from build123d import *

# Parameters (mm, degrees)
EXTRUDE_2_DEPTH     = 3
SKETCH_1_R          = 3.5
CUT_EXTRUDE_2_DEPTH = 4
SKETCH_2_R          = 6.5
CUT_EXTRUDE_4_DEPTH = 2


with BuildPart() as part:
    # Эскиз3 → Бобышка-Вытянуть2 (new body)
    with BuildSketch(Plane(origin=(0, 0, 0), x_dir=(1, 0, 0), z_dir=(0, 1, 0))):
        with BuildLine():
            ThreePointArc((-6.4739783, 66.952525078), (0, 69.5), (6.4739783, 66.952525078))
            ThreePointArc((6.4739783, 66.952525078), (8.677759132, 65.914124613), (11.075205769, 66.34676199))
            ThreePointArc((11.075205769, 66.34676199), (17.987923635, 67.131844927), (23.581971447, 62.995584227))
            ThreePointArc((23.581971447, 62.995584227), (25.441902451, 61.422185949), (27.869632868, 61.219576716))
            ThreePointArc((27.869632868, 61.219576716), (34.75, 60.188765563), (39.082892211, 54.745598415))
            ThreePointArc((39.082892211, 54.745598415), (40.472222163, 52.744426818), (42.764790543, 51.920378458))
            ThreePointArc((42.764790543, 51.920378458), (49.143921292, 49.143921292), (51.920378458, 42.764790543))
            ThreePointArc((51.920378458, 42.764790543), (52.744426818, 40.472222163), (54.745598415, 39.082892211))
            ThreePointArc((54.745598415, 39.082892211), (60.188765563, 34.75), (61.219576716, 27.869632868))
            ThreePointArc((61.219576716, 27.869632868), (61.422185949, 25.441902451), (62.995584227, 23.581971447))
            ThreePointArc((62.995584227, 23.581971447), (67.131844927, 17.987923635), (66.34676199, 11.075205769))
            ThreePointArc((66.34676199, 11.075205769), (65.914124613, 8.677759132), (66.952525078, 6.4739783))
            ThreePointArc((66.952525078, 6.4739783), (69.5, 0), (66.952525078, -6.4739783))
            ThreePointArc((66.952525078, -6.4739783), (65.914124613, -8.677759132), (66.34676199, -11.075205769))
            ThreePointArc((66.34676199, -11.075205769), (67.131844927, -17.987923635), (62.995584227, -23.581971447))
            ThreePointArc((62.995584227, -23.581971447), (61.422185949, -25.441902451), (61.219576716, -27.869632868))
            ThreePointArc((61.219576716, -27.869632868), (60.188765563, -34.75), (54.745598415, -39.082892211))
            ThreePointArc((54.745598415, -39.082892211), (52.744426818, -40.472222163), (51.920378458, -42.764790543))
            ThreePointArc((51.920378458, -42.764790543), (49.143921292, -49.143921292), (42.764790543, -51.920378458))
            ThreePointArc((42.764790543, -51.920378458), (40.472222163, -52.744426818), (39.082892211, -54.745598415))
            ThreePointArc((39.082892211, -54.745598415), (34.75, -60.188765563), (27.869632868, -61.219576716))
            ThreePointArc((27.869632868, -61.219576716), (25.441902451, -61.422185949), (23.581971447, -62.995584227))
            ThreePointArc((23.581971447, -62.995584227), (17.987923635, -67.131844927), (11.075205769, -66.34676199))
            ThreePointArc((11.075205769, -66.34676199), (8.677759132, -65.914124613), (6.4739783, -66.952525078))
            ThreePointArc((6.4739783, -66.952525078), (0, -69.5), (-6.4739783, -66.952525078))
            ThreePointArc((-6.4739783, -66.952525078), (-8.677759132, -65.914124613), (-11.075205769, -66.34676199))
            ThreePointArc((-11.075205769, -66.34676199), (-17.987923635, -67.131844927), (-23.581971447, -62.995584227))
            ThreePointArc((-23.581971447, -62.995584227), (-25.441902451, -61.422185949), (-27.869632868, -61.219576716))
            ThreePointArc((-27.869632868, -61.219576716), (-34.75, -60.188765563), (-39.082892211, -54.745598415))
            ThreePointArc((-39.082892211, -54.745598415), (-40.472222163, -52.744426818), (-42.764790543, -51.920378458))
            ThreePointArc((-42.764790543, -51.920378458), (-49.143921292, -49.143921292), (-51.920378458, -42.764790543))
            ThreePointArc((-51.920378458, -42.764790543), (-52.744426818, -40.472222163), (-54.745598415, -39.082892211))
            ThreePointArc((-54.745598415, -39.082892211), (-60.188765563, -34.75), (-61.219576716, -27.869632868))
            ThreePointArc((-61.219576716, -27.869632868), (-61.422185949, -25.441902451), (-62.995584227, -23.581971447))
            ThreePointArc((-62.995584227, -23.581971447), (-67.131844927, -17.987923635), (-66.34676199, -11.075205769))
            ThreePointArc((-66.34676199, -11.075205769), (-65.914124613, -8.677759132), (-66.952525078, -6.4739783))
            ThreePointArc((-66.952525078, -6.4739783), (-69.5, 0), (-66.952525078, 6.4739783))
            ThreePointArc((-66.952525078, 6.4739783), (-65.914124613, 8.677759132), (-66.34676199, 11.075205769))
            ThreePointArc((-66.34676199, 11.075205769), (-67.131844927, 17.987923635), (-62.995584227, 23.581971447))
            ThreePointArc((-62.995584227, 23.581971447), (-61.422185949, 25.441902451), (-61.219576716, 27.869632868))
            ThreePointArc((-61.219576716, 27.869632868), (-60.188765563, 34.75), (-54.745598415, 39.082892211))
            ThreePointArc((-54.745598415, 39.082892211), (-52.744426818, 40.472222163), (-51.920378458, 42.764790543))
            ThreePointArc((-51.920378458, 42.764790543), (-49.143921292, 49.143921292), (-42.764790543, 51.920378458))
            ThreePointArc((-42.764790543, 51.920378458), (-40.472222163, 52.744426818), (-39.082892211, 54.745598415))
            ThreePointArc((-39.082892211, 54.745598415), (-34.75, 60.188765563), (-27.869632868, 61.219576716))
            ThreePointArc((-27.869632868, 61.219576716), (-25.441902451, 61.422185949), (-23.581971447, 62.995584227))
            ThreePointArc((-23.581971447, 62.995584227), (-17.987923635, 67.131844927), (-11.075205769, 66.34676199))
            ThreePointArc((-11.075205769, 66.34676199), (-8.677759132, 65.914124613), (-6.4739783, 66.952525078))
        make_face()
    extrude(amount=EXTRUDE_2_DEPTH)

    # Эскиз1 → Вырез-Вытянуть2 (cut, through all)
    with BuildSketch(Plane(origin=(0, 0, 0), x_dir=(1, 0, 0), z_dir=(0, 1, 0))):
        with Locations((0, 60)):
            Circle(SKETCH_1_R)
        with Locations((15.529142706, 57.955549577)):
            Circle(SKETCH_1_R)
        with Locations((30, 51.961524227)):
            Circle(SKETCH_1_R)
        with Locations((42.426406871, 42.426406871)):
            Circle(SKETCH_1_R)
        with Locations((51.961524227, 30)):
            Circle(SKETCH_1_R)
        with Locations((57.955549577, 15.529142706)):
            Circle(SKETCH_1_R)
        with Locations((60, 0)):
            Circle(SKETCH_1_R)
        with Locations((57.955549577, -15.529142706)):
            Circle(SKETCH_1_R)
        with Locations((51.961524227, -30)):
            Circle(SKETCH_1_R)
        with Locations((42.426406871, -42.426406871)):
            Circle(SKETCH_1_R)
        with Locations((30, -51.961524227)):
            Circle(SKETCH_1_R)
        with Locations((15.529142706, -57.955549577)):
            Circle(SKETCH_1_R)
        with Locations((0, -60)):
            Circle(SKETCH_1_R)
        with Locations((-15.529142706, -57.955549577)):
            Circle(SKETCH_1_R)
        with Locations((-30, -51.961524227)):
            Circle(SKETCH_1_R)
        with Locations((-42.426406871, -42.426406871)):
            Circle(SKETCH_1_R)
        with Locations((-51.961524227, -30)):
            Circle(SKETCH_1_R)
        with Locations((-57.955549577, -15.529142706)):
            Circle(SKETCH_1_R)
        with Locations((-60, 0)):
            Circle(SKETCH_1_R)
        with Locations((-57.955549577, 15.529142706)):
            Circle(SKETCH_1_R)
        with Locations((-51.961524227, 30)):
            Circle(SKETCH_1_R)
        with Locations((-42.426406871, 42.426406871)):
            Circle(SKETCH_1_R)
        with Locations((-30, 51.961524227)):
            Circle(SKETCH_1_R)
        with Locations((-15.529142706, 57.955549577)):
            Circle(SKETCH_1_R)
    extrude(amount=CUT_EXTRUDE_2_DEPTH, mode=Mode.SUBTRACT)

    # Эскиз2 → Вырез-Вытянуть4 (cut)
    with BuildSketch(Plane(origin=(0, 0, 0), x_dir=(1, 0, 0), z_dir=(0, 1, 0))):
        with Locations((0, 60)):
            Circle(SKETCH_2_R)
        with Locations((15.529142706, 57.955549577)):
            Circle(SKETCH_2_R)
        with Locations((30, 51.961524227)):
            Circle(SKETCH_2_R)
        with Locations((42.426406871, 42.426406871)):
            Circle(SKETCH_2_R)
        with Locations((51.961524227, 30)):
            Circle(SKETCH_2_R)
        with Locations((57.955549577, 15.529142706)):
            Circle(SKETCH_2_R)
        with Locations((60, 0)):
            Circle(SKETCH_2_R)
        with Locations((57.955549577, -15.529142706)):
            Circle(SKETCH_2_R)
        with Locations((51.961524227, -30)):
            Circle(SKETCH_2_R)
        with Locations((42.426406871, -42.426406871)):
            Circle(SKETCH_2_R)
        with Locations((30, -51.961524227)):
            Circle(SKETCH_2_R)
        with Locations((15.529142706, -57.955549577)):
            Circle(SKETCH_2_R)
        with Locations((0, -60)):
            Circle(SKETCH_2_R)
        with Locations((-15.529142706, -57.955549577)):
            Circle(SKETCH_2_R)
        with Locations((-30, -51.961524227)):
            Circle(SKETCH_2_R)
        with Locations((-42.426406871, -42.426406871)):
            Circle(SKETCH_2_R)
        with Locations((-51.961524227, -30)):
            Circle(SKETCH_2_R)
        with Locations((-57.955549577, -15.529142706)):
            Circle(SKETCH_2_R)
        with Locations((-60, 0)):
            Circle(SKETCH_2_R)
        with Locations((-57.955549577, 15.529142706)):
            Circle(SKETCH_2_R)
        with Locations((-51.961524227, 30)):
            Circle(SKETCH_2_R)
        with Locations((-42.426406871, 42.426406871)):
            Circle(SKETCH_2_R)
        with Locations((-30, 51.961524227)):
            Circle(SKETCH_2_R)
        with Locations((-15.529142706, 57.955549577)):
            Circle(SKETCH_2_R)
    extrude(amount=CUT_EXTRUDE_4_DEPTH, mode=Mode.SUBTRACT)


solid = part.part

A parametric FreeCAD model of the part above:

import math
import FreeCAD as App
import Part
import Sketcher

doc = App.newDocument("Part")
body = doc.addObject("PartDesign::Body", "Body")

sketch1 = body.newObject("Sketcher::SketchObject", "Sketch")
sketch1.AttachmentSupport = (doc.getObject("XZ_Plane"), [""])
sketch1.MapMode = "FlatFace"
sketch1.addGeometry(Part.ArcOfCircle(Part.Circle(App.Vector(0, -60, 0), App.Vector(0, 0, 1), 9.5), math.radians(-132.958731), math.radians(-47.041269)), False)
sketch1.addGeometry(Part.ArcOfCircle(Part.Circle(App.Vector(-9.199864, -69.879904, 0), App.Vector(0, 0, 1), 4), math.radians(47.041269), math.radians(117.958731)), False)
sketch1.addGeometry(Part.ArcOfCircle(Part.Circle(App.Vector(-15.529143, -57.95555, 0), App.Vector(0, 0, 1), 9.5), math.radians(-147.958731), math.radians(-62.041269)), False)
sketch1.addGeometry(Part.ArcOfCircle(Part.Circle(App.Vector(-26.972636, -65.117704, 0), App.Vector(0, 0, 1), 4), math.radians(32.041269), math.radians(102.958731)), False)
sketch1.addGeometry(Part.ArcOfCircle(Part.Circle(App.Vector(-30, -51.961524, 0), App.Vector(0, 0, 1), 9.5), math.radians(-162.958731), math.radians(-77.041269)), False)
sketch1.addGeometry(Part.ArcOfCircle(Part.Circle(App.Vector(-42.907268, -55.91784, 0), App.Vector(0, 0, 1), 4), math.radians(17.041269), math.radians(87.958731)), False)
sketch1.addGeometry(Part.ArcOfCircle(Part.Circle(App.Vector(-42.426407, -42.426407, 0), App.Vector(0, 0, 1), 9.5), math.radians(-177.958731), math.radians(-92.041269)), False)
sketch1.addGeometry(Part.ArcOfCircle(Part.Circle(App.Vector(-55.91784, -42.907268, 0), App.Vector(0, 0, 1), 4), math.radians(2.041269), math.radians(72.958731)), False)
sketch1.addGeometry(Part.ArcOfCircle(Part.Circle(App.Vector(-51.961524, -30, 0), App.Vector(0, 0, 1), 9.5), math.radians(167.041269), math.radians(252.958731)), False)
sketch1.addGeometry(Part.ArcOfCircle(Part.Circle(App.Vector(-65.117704, -26.972636, 0), App.Vector(0, 0, 1), 4), math.radians(-12.958731), math.radians(57.958731)), False)
sketch1.addGeometry(Part.ArcOfCircle(Part.Circle(App.Vector(-57.95555, -15.529143, 0), App.Vector(0, 0, 1), 9.5), math.radians(152.041269), math.radians(237.958731)), False)
sketch1.addGeometry(Part.ArcOfCircle(Part.Circle(App.Vector(-69.879904, -9.199864, 0), App.Vector(0, 0, 1), 4), math.radians(-27.958731), math.radians(42.958731)), False)
sketch1.addGeometry(Part.ArcOfCircle(Part.Circle(App.Vector(-60, 0, 0), App.Vector(0, 0, 1), 9.5), math.radians(137.041269), math.radians(222.958731)), False)
sketch1.addGeometry(Part.ArcOfCircle(Part.Circle(App.Vector(-69.879904, 9.199864, 0), App.Vector(0, 0, 1), 4), math.radians(-42.958731), math.radians(27.958731)), False)
sketch1.addGeometry(Part.ArcOfCircle(Part.Circle(App.Vector(-57.95555, 15.529143, 0), App.Vector(0, 0, 1), 9.5), math.radians(122.041269), math.radians(207.958731)), False)
sketch1.addGeometry(Part.ArcOfCircle(Part.Circle(App.Vector(-65.117704, 26.972636, 0), App.Vector(0, 0, 1), 4), math.radians(-57.958731), math.radians(12.958731)), False)
sketch1.addGeometry(Part.ArcOfCircle(Part.Circle(App.Vector(-51.961524, 30, 0), App.Vector(0, 0, 1), 9.5), math.radians(107.041269), math.radians(192.958731)), False)
sketch1.addGeometry(Part.ArcOfCircle(Part.Circle(App.Vector(-55.91784, 42.907268, 0), App.Vector(0, 0, 1), 4), math.radians(-72.958731), math.radians(-2.041269)), False)
sketch1.addGeometry(Part.ArcOfCircle(Part.Circle(App.Vector(-42.426407, 42.426407, 0), App.Vector(0, 0, 1), 9.5), math.radians(92.041269), math.radians(177.958731)), False)
sketch1.addGeometry(Part.ArcOfCircle(Part.Circle(App.Vector(-42.907268, 55.91784, 0), App.Vector(0, 0, 1), 4), math.radians(-87.958731), math.radians(-17.041269)), False)
sketch1.addGeometry(Part.ArcOfCircle(Part.Circle(App.Vector(-30, 51.961524, 0), App.Vector(0, 0, 1), 9.5), math.radians(77.041269), math.radians(162.958731)), False)
sketch1.addGeometry(Part.ArcOfCircle(Part.Circle(App.Vector(-26.972636, 65.117704, 0), App.Vector(0, 0, 1), 4), math.radians(-102.958731), math.radians(-32.041269)), False)
sketch1.addGeometry(Part.ArcOfCircle(Part.Circle(App.Vector(-15.529143, 57.95555, 0), App.Vector(0, 0, 1), 9.5), math.radians(62.041269), math.radians(147.958731)), False)
sketch1.addGeometry(Part.ArcOfCircle(Part.Circle(App.Vector(-9.199864, 69.879904, 0), App.Vector(0, 0, 1), 4), math.radians(-117.958731), math.radians(-47.041269)), False)
sketch1.addGeometry(Part.ArcOfCircle(Part.Circle(App.Vector(0, 60, 0), App.Vector(0, 0, 1), 9.5), math.radians(47.041269), math.radians(132.958731)), False)
sketch1.addGeometry(Part.ArcOfCircle(Part.Circle(App.Vector(9.199864, 69.879904, 0), App.Vector(0, 0, 1), 4), math.radians(-132.958731), math.radians(-62.041269)), False)
sketch1.addGeometry(Part.ArcOfCircle(Part.Circle(App.Vector(15.529143, 57.95555, 0), App.Vector(0, 0, 1), 9.5), math.radians(32.041269), math.radians(117.958731)), False)
sketch1.addGeometry(Part.ArcOfCircle(Part.Circle(App.Vector(26.972636, 65.117704, 0), App.Vector(0, 0, 1), 4), math.radians(-147.958731), math.radians(-77.041269)), False)
sketch1.addGeometry(Part.ArcOfCircle(Part.Circle(App.Vector(30, 51.961524, 0), App.Vector(0, 0, 1), 9.5), math.radians(17.041269), math.radians(102.958731)), False)
sketch1.addGeometry(Part.ArcOfCircle(Part.Circle(App.Vector(42.907268, 55.91784, 0), App.Vector(0, 0, 1), 4), math.radians(-162.958731), math.radians(-92.041269)), False)
sketch1.addGeometry(Part.ArcOfCircle(Part.Circle(App.Vector(42.426407, 42.426407, 0), App.Vector(0, 0, 1), 9.5), math.radians(2.041269), math.radians(87.958731)), False)
sketch1.addGeometry(Part.ArcOfCircle(Part.Circle(App.Vector(55.91784, 42.907268, 0), App.Vector(0, 0, 1), 4), math.radians(-177.958731), math.radians(-107.041269)), False)
sketch1.addGeometry(Part.ArcOfCircle(Part.Circle(App.Vector(51.961524, 30, 0), App.Vector(0, 0, 1), 9.5), math.radians(-12.958731), math.radians(72.958731)), False)
sketch1.addGeometry(Part.ArcOfCircle(Part.Circle(App.Vector(65.117704, 26.972636, 0), App.Vector(0, 0, 1), 4), math.radians(167.041269), math.radians(237.958731)), False)
sketch1.addGeometry(Part.ArcOfCircle(Part.Circle(App.Vector(57.95555, 15.529143, 0), App.Vector(0, 0, 1), 9.5), math.radians(-27.958731), math.radians(57.958731)), False)
sketch1.addGeometry(Part.ArcOfCircle(Part.Circle(App.Vector(69.879904, 9.199864, 0), App.Vector(0, 0, 1), 4), math.radians(152.041269), math.radians(222.958731)), False)
sketch1.addGeometry(Part.ArcOfCircle(Part.Circle(App.Vector(60, 0, 0), App.Vector(0, 0, 1), 9.5), math.radians(-42.958731), math.radians(42.958731)), False)
sketch1.addGeometry(Part.ArcOfCircle(Part.Circle(App.Vector(69.879904, -9.199864, 0), App.Vector(0, 0, 1), 4), math.radians(137.041269), math.radians(207.958731)), False)
sketch1.addGeometry(Part.ArcOfCircle(Part.Circle(App.Vector(57.95555, -15.529143, 0), App.Vector(0, 0, 1), 9.5), math.radians(-57.958731), math.radians(27.958731)), False)
sketch1.addGeometry(Part.ArcOfCircle(Part.Circle(App.Vector(65.117704, -26.972636, 0), App.Vector(0, 0, 1), 4), math.radians(122.041269), math.radians(192.958731)), False)
sketch1.addGeometry(Part.ArcOfCircle(Part.Circle(App.Vector(51.961524, -30, 0), App.Vector(0, 0, 1), 9.5), math.radians(-72.958731), math.radians(12.958731)), False)
sketch1.addGeometry(Part.ArcOfCircle(Part.Circle(App.Vector(55.91784, -42.907268, 0), App.Vector(0, 0, 1), 4), math.radians(107.041269), math.radians(177.958731)), False)
sketch1.addGeometry(Part.ArcOfCircle(Part.Circle(App.Vector(42.426407, -42.426407, 0), App.Vector(0, 0, 1), 9.5), math.radians(-87.958731), math.radians(-2.041269)), False)
sketch1.addGeometry(Part.ArcOfCircle(Part.Circle(App.Vector(42.907268, -55.91784, 0), App.Vector(0, 0, 1), 4), math.radians(92.041269), math.radians(162.958731)), False)
sketch1.addGeometry(Part.ArcOfCircle(Part.Circle(App.Vector(30, -51.961524, 0), App.Vector(0, 0, 1), 9.5), math.radians(-102.958731), math.radians(-17.041269)), False)
sketch1.addGeometry(Part.ArcOfCircle(Part.Circle(App.Vector(26.972636, -65.117704, 0), App.Vector(0, 0, 1), 4), math.radians(77.041269), math.radians(147.958731)), False)
sketch1.addGeometry(Part.ArcOfCircle(Part.Circle(App.Vector(15.529143, -57.95555, 0), App.Vector(0, 0, 1), 9.5), math.radians(-117.958731), math.radians(-32.041269)), False)
sketch1.addGeometry(Part.ArcOfCircle(Part.Circle(App.Vector(9.199864, -69.879904, 0), App.Vector(0, 0, 1), 4), math.radians(62.041269), math.radians(132.958731)), False)
sketch1.addConstraint(Sketcher.Constraint("Tangent", 0, 1, 1, 1))
sketch1.addConstraint(Sketcher.Constraint("Tangent", 1, 2, 2, 2))
sketch1.addConstraint(Sketcher.Constraint("Tangent", 2, 1, 3, 1))
sketch1.addConstraint(Sketcher.Constraint("Tangent", 3, 2, 4, 2))
sketch1.addConstraint(Sketcher.Constraint("Tangent", 4, 1, 5, 1))
sketch1.addConstraint(Sketcher.Constraint("Tangent", 5, 2, 6, 2))
sketch1.addConstraint(Sketcher.Constraint("Tangent", 6, 1, 7, 1))
sketch1.addConstraint(Sketcher.Constraint("Tangent", 7, 2, 8, 2))
sketch1.addConstraint(Sketcher.Constraint("Tangent", 8, 1, 9, 1))
sketch1.addConstraint(Sketcher.Constraint("Tangent", 9, 2, 10, 2))
sketch1.addConstraint(Sketcher.Constraint("Tangent", 10, 1, 11, 1))
sketch1.addConstraint(Sketcher.Constraint("Tangent", 11, 2, 12, 2))
sketch1.addConstraint(Sketcher.Constraint("Tangent", 12, 1, 13, 1))
sketch1.addConstraint(Sketcher.Constraint("Tangent", 13, 2, 14, 2))
sketch1.addConstraint(Sketcher.Constraint("Tangent", 14, 1, 15, 1))
sketch1.addConstraint(Sketcher.Constraint("Tangent", 15, 2, 16, 2))
sketch1.addConstraint(Sketcher.Constraint("Tangent", 16, 1, 17, 1))
sketch1.addConstraint(Sketcher.Constraint("Tangent", 17, 2, 18, 2))
sketch1.addConstraint(Sketcher.Constraint("Tangent", 18, 1, 19, 1))
sketch1.addConstraint(Sketcher.Constraint("Tangent", 19, 2, 20, 2))
sketch1.addConstraint(Sketcher.Constraint("Tangent", 20, 1, 21, 1))
sketch1.addConstraint(Sketcher.Constraint("Tangent", 21, 2, 22, 2))
sketch1.addConstraint(Sketcher.Constraint("Tangent", 22, 1, 23, 1))
sketch1.addConstraint(Sketcher.Constraint("Tangent", 23, 2, 24, 2))
sketch1.addConstraint(Sketcher.Constraint("Tangent", 24, 1, 25, 1))
sketch1.addConstraint(Sketcher.Constraint("Tangent", 25, 2, 26, 2))
sketch1.addConstraint(Sketcher.Constraint("Tangent", 26, 1, 27, 1))
sketch1.addConstraint(Sketcher.Constraint("Tangent", 27, 2, 28, 2))
sketch1.addConstraint(Sketcher.Constraint("Tangent", 28, 1, 29, 1))
sketch1.addConstraint(Sketcher.Constraint("Tangent", 29, 2, 30, 2))
sketch1.addConstraint(Sketcher.Constraint("Tangent", 30, 1, 31, 1))
sketch1.addConstraint(Sketcher.Constraint("Tangent", 31, 2, 32, 2))
sketch1.addConstraint(Sketcher.Constraint("Tangent", 32, 1, 33, 1))
sketch1.addConstraint(Sketcher.Constraint("Tangent", 33, 2, 34, 2))
sketch1.addConstraint(Sketcher.Constraint("Tangent", 34, 1, 35, 1))
sketch1.addConstraint(Sketcher.Constraint("Tangent", 35, 2, 36, 2))
sketch1.addConstraint(Sketcher.Constraint("Tangent", 36, 1, 37, 1))
sketch1.addConstraint(Sketcher.Constraint("Tangent", 37, 2, 38, 2))
sketch1.addConstraint(Sketcher.Constraint("Tangent", 38, 1, 39, 1))
sketch1.addConstraint(Sketcher.Constraint("Tangent", 39, 2, 40, 2))
sketch1.addConstraint(Sketcher.Constraint("Tangent", 40, 1, 41, 1))
sketch1.addConstraint(Sketcher.Constraint("Tangent", 41, 2, 42, 2))
sketch1.addConstraint(Sketcher.Constraint("Tangent", 42, 1, 43, 1))
sketch1.addConstraint(Sketcher.Constraint("Tangent", 43, 2, 44, 2))
sketch1.addConstraint(Sketcher.Constraint("Tangent", 44, 1, 45, 1))
sketch1.addConstraint(Sketcher.Constraint("Tangent", 45, 2, 46, 2))
sketch1.addConstraint(Sketcher.Constraint("Tangent", 46, 1, 47, 1))
sketch1.addConstraint(Sketcher.Constraint("Tangent", 47, 2, 0, 2))
sketch1.addConstraint(Sketcher.Constraint("Equal", 0, 2))
sketch1.addConstraint(Sketcher.Constraint("Equal", 1, 3))
sketch1.addConstraint(Sketcher.Constraint("Equal", 2, 4))
sketch1.addConstraint(Sketcher.Constraint("Equal", 3, 5))
sketch1.addConstraint(Sketcher.Constraint("Equal", 4, 6))
sketch1.addConstraint(Sketcher.Constraint("Equal", 5, 7))
sketch1.addConstraint(Sketcher.Constraint("Equal", 6, 8))
sketch1.addConstraint(Sketcher.Constraint("Equal", 7, 9))
sketch1.addConstraint(Sketcher.Constraint("Equal", 8, 10))
sketch1.addConstraint(Sketcher.Constraint("Equal", 9, 11))
sketch1.addConstraint(Sketcher.Constraint("Equal", 10, 12))
sketch1.addConstraint(Sketcher.Constraint("Equal", 11, 13))
sketch1.addConstraint(Sketcher.Constraint("Equal", 12, 14))
sketch1.addConstraint(Sketcher.Constraint("Equal", 13, 15))
sketch1.addConstraint(Sketcher.Constraint("Equal", 14, 16))
sketch1.addConstraint(Sketcher.Constraint("Equal", 15, 17))
sketch1.addConstraint(Sketcher.Constraint("Equal", 16, 18))
sketch1.addConstraint(Sketcher.Constraint("Equal", 17, 19))
sketch1.addConstraint(Sketcher.Constraint("Equal", 18, 20))
sketch1.addConstraint(Sketcher.Constraint("Equal", 19, 21))
sketch1.addConstraint(Sketcher.Constraint("Equal", 20, 22))
sketch1.addConstraint(Sketcher.Constraint("Equal", 21, 23))
sketch1.addConstraint(Sketcher.Constraint("Equal", 22, 24))
sketch1.addConstraint(Sketcher.Constraint("Equal", 23, 25))
sketch1.addConstraint(Sketcher.Constraint("Equal", 24, 26))
sketch1.addConstraint(Sketcher.Constraint("Equal", 25, 27))
sketch1.addConstraint(Sketcher.Constraint("Equal", 26, 28))
sketch1.addConstraint(Sketcher.Constraint("Equal", 27, 29))
sketch1.addConstraint(Sketcher.Constraint("Equal", 28, 30))
sketch1.addConstraint(Sketcher.Constraint("Equal", 29, 31))
sketch1.addConstraint(Sketcher.Constraint("Equal", 30, 32))
sketch1.addConstraint(Sketcher.Constraint("Equal", 31, 33))
sketch1.addConstraint(Sketcher.Constraint("Equal", 32, 34))
sketch1.addConstraint(Sketcher.Constraint("Equal", 33, 35))
sketch1.addConstraint(Sketcher.Constraint("Equal", 34, 36))
sketch1.addConstraint(Sketcher.Constraint("Equal", 35, 37))
sketch1.addConstraint(Sketcher.Constraint("Equal", 36, 38))
sketch1.addConstraint(Sketcher.Constraint("Equal", 37, 39))
sketch1.addConstraint(Sketcher.Constraint("Equal", 38, 40))
sketch1.addConstraint(Sketcher.Constraint("Equal", 39, 41))
sketch1.addConstraint(Sketcher.Constraint("Equal", 40, 42))
sketch1.addConstraint(Sketcher.Constraint("Equal", 41, 43))
sketch1.addConstraint(Sketcher.Constraint("Equal", 42, 44))
sketch1.addConstraint(Sketcher.Constraint("Equal", 43, 45))
sketch1.addConstraint(Sketcher.Constraint("Equal", 44, 46))
sketch1.addConstraint(Sketcher.Constraint("Equal", 45, 47))
sketch1.addConstraint(Sketcher.Constraint("Symmetric", 0, 3, 24, 3, -1, 1))
sketch1.addConstraint(Sketcher.Constraint("Symmetric", 2, 3, 26, 3, -1, 1))
sketch1.addConstraint(Sketcher.Constraint("Symmetric", 4, 3, 28, 3, -1, 1))
sketch1.addConstraint(Sketcher.Constraint("Symmetric", 6, 3, 30, 3, -1, 1))
sketch1.addConstraint(Sketcher.Constraint("Symmetric", 8, 3, 32, 3, -1, 1))
sketch1.addConstraint(Sketcher.Constraint("Symmetric", 10, 3, 34, 3, -1, 1))
sketch1.addConstraint(Sketcher.Constraint("Symmetric", 12, 3, 36, 3, -1, 1))
sketch1.addConstraint(Sketcher.Constraint("Symmetric", 14, 3, 38, 3, -1, 1))
sketch1.addConstraint(Sketcher.Constraint("Symmetric", 16, 3, 40, 3, -1, 1))
sketch1.addConstraint(Sketcher.Constraint("Symmetric", 18, 3, 42, 3, -1, 1))
sketch1.addConstraint(Sketcher.Constraint("Symmetric", 20, 3, 44, 3, -1, 1))
sketch1.addConstraint(Sketcher.Constraint("Symmetric", 22, 3, 46, 3, -1, 1))
sketch1.addConstraint(Sketcher.Constraint("Symmetric", 23, 3, 25, 3, -2))
sketch1.addConstraint(Sketcher.Constraint("Symmetric", 21, 3, 27, 3, -2))
sketch1.addConstraint(Sketcher.Constraint("Symmetric", 19, 3, 29, 3, -2))
sketch1.addConstraint(Sketcher.Constraint("Symmetric", 17, 3, 31, 3, -2))
sketch1.addConstraint(Sketcher.Constraint("Symmetric", 15, 3, 33, 3, -2))
sketch1.addConstraint(Sketcher.Constraint("Symmetric", 13, 3, 35, 3, -2))
sketch1.addConstraint(Sketcher.Constraint("Radius", 1, 4.0))
sketch1.addConstraint(Sketcher.Constraint("Radius", 0, 9.5))
sketch1.addConstraint(Sketcher.Constraint("DistanceY", 0, 3, -1, 1, 60.0))
sketch1.addConstraint(Sketcher.Constraint("DistanceX", 4, 3, -1, 1, 30.0))
sketch1.addConstraint(Sketcher.Constraint("DistanceY", 8, 3, -1, 1, 30.0))
sketch1.addConstraint(Sketcher.Constraint("DistanceX", 12, 3, -1, 1, 60.0))
sketch1.addConstraint(Sketcher.Constraint("DistanceY", 4, 1, -1, 1, 54.745598))
sketch1.addConstraint(Sketcher.Constraint("DistanceX", 7, 2, -1, 1, 54.745598))
sketch1.addConstraint(Sketcher.Constraint("DistanceY", 2, 3, -1, 1, 57.95555))
sketch1.addConstraint(Sketcher.Constraint("DistanceY", 5, 3, -1, 1, 55.91784))
sketch1.addConstraint(Sketcher.Constraint("DistanceX", 7, 3, -1, 1, 55.91784))
sketch1.addConstraint(Sketcher.Constraint("DistanceX", 10, 3, -1, 1, 57.95555))
sketch1.addConstraint(Sketcher.Constraint("DistanceX", 0, 1, -1, 1, 6.473978))
sketch1.addConstraint(Sketcher.Constraint("DistanceY", 9, 2, -1, 1, 23.581971))
pad1 = body.newObject("PartDesign::Pad", "Pad")
pad1.Profile = sketch1
pad1.Length = 3
pad1.Reversed = True

sketch2 = body.newObject("Sketcher::SketchObject", "Sketch001")
sketch2.AttachmentSupport = (doc.getObject("XZ_Plane"), [""])
sketch2.MapMode = "FlatFace"
sketch2.addGeometry(Part.Circle(App.Vector(0, -60, 0), App.Vector(0, 0, 1), 3.5), False)
sketch2.addGeometry(Part.Circle(App.Vector(15.529143, -57.95555, 0), App.Vector(0, 0, 1), 3.5), False)
sketch2.addGeometry(Part.Circle(App.Vector(30, -51.961524, 0), App.Vector(0, 0, 1), 3.5), False)
sketch2.addGeometry(Part.Circle(App.Vector(42.426407, -42.426407, 0), App.Vector(0, 0, 1), 3.5), False)
sketch2.addGeometry(Part.Circle(App.Vector(51.961524, -30, 0), App.Vector(0, 0, 1), 3.5), False)
sketch2.addGeometry(Part.Circle(App.Vector(57.95555, -15.529143, 0), App.Vector(0, 0, 1), 3.5), False)
sketch2.addGeometry(Part.Circle(App.Vector(60, 0, 0), App.Vector(0, 0, 1), 3.5), False)
sketch2.addGeometry(Part.Circle(App.Vector(57.95555, 15.529143, 0), App.Vector(0, 0, 1), 3.5), False)
sketch2.addGeometry(Part.Circle(App.Vector(51.961524, 30, 0), App.Vector(0, 0, 1), 3.5), False)
sketch2.addGeometry(Part.Circle(App.Vector(42.426407, 42.426407, 0), App.Vector(0, 0, 1), 3.5), False)
sketch2.addGeometry(Part.Circle(App.Vector(30, 51.961524, 0), App.Vector(0, 0, 1), 3.5), False)
sketch2.addGeometry(Part.Circle(App.Vector(15.529143, 57.95555, 0), App.Vector(0, 0, 1), 3.5), False)
sketch2.addGeometry(Part.Circle(App.Vector(0, 60, 0), App.Vector(0, 0, 1), 3.5), False)
sketch2.addGeometry(Part.Circle(App.Vector(-15.529143, 57.95555, 0), App.Vector(0, 0, 1), 3.5), False)
sketch2.addGeometry(Part.Circle(App.Vector(-30, 51.961524, 0), App.Vector(0, 0, 1), 3.5), False)
sketch2.addGeometry(Part.Circle(App.Vector(-42.426407, 42.426407, 0), App.Vector(0, 0, 1), 3.5), False)
sketch2.addGeometry(Part.Circle(App.Vector(-51.961524, 30, 0), App.Vector(0, 0, 1), 3.5), False)
sketch2.addGeometry(Part.Circle(App.Vector(-57.95555, 15.529143, 0), App.Vector(0, 0, 1), 3.5), False)
sketch2.addGeometry(Part.Circle(App.Vector(-60, 0, 0), App.Vector(0, 0, 1), 3.5), False)
sketch2.addGeometry(Part.Circle(App.Vector(-57.95555, -15.529143, 0), App.Vector(0, 0, 1), 3.5), False)
sketch2.addGeometry(Part.Circle(App.Vector(-51.961524, -30, 0), App.Vector(0, 0, 1), 3.5), False)
sketch2.addGeometry(Part.Circle(App.Vector(-42.426407, -42.426407, 0), App.Vector(0, 0, 1), 3.5), False)
sketch2.addGeometry(Part.Circle(App.Vector(-30, -51.961524, 0), App.Vector(0, 0, 1), 3.5), False)
sketch2.addGeometry(Part.Circle(App.Vector(-15.529143, -57.95555, 0), App.Vector(0, 0, 1), 3.5), False)
sketch2.addConstraint(Sketcher.Constraint("Equal", 0, 1))
sketch2.addConstraint(Sketcher.Constraint("Equal", 1, 2))
sketch2.addConstraint(Sketcher.Constraint("Equal", 2, 3))
sketch2.addConstraint(Sketcher.Constraint("Equal", 3, 4))
sketch2.addConstraint(Sketcher.Constraint("Equal", 4, 5))
sketch2.addConstraint(Sketcher.Constraint("Equal", 5, 6))
sketch2.addConstraint(Sketcher.Constraint("Equal", 6, 7))
sketch2.addConstraint(Sketcher.Constraint("Equal", 7, 8))
sketch2.addConstraint(Sketcher.Constraint("Equal", 8, 9))
sketch2.addConstraint(Sketcher.Constraint("Equal", 9, 10))
sketch2.addConstraint(Sketcher.Constraint("Equal", 10, 11))
sketch2.addConstraint(Sketcher.Constraint("Equal", 11, 12))
sketch2.addConstraint(Sketcher.Constraint("Equal", 12, 13))
sketch2.addConstraint(Sketcher.Constraint("Equal", 13, 14))
sketch2.addConstraint(Sketcher.Constraint("Equal", 14, 15))
sketch2.addConstraint(Sketcher.Constraint("Equal", 15, 16))
sketch2.addConstraint(Sketcher.Constraint("Equal", 16, 17))
sketch2.addConstraint(Sketcher.Constraint("Equal", 17, 18))
sketch2.addConstraint(Sketcher.Constraint("Equal", 18, 19))
sketch2.addConstraint(Sketcher.Constraint("Equal", 19, 20))
sketch2.addConstraint(Sketcher.Constraint("Equal", 20, 21))
sketch2.addConstraint(Sketcher.Constraint("Equal", 21, 22))
sketch2.addConstraint(Sketcher.Constraint("Equal", 22, 23))
sketch2.addConstraint(Sketcher.Constraint("Symmetric", 0, 3, 12, 3, -1, 1))
sketch2.addConstraint(Sketcher.Constraint("Symmetric", 1, 3, 13, 3, -1, 1))
sketch2.addConstraint(Sketcher.Constraint("Symmetric", 2, 3, 14, 3, -1, 1))
sketch2.addConstraint(Sketcher.Constraint("Symmetric", 3, 3, 15, 3, -1, 1))
sketch2.addConstraint(Sketcher.Constraint("Symmetric", 4, 3, 16, 3, -1, 1))
sketch2.addConstraint(Sketcher.Constraint("Symmetric", 5, 3, 17, 3, -1, 1))
sketch2.addConstraint(Sketcher.Constraint("Symmetric", 6, 3, 18, 3, -1, 1))
sketch2.addConstraint(Sketcher.Constraint("Symmetric", 7, 3, 19, 3, -1, 1))
sketch2.addConstraint(Sketcher.Constraint("Symmetric", 8, 3, 20, 3, -1, 1))
sketch2.addConstraint(Sketcher.Constraint("Symmetric", 9, 3, 21, 3, -1, 1))
sketch2.addConstraint(Sketcher.Constraint("Symmetric", 10, 3, 22, 3, -1, 1))
sketch2.addConstraint(Sketcher.Constraint("Symmetric", 11, 3, 23, 3, -1, 1))
sketch2.addConstraint(Sketcher.Constraint("Symmetric", 11, 3, 13, 3, -2))
sketch2.addConstraint(Sketcher.Constraint("Symmetric", 10, 3, 14, 3, -2))
sketch2.addConstraint(Sketcher.Constraint("Symmetric", 9, 3, 15, 3, -2))
sketch2.addConstraint(Sketcher.Constraint("Symmetric", 8, 3, 16, 3, -2))
sketch2.addConstraint(Sketcher.Constraint("Symmetric", 7, 3, 17, 3, -2))
sketch2.addConstraint(Sketcher.Constraint("PointOnObject", 0, 3, -2))
sketch2.addConstraint(Sketcher.Constraint("PointOnObject", 6, 3, -1))
sketch2.addConstraint(Sketcher.Constraint("Diameter", 0, 7.0))
sketch2.addConstraint(Sketcher.Constraint("DistanceY", 0, 3, -1, 1, 60.0))
sketch2.addConstraint(Sketcher.Constraint("DistanceX", -1, 1, 2, 3, 30.0))
sketch2.addConstraint(Sketcher.Constraint("DistanceY", 4, 3, -1, 1, 30.0))
sketch2.addConstraint(Sketcher.Constraint("DistanceX", -1, 1, 6, 3, 60.0))
sketch2.addConstraint(Sketcher.Constraint("DistanceY", 1, 3, -1, 1, 57.95555))
sketch2.addConstraint(Sketcher.Constraint("DistanceX", -1, 1, 5, 3, 57.95555))
sketch2.addConstraint(Sketcher.Constraint("DistanceX", 1, 3, 4, 3, 36.432382))
sketch2.addConstraint(Sketcher.Constraint("DistanceY", 2, 3, 5, 3, 36.432382))
sketch2.addConstraint(Sketcher.Constraint("DistanceY", 3, 3, 7, 3, 57.95555))
sketch2.addConstraint(Sketcher.Constraint("DistanceX", 13, 3, 9, 3, 57.95555))
sketch2.addConstraint(Sketcher.Constraint("DistanceX", -1, 1, 1, 3, 15.529143))
sketch2.addConstraint(Sketcher.Constraint("DistanceY", 2, 3, -1, 1, 51.961524))
pocket1 = body.newObject("PartDesign::Pocket", "Pocket")
pocket1.Profile = sketch2
pocket1.Type = "ThroughAll"

sketch3 = body.newObject("Sketcher::SketchObject", "Sketch002")
sketch3.AttachmentSupport = (doc.getObject("XZ_Plane"), [""])
sketch3.MapMode = "FlatFace"
sketch3.addGeometry(Part.Circle(App.Vector(0, -60, 0), App.Vector(0, 0, 1), 6.5), False)
sketch3.addGeometry(Part.Circle(App.Vector(15.529143, -57.95555, 0), App.Vector(0, 0, 1), 6.5), False)
sketch3.addGeometry(Part.Circle(App.Vector(30, -51.961524, 0), App.Vector(0, 0, 1), 6.5), False)
sketch3.addGeometry(Part.Circle(App.Vector(42.426407, -42.426407, 0), App.Vector(0, 0, 1), 6.5), False)
sketch3.addGeometry(Part.Circle(App.Vector(51.961524, -30, 0), App.Vector(0, 0, 1), 6.5), False)
sketch3.addGeometry(Part.Circle(App.Vector(57.95555, -15.529143, 0), App.Vector(0, 0, 1), 6.5), False)
sketch3.addGeometry(Part.Circle(App.Vector(60, 0, 0), App.Vector(0, 0, 1), 6.5), False)
sketch3.addGeometry(Part.Circle(App.Vector(57.95555, 15.529143, 0), App.Vector(0, 0, 1), 6.5), False)
sketch3.addGeometry(Part.Circle(App.Vector(51.961524, 30, 0), App.Vector(0, 0, 1), 6.5), False)
sketch3.addGeometry(Part.Circle(App.Vector(42.426407, 42.426407, 0), App.Vector(0, 0, 1), 6.5), False)
sketch3.addGeometry(Part.Circle(App.Vector(30, 51.961524, 0), App.Vector(0, 0, 1), 6.5), False)
sketch3.addGeometry(Part.Circle(App.Vector(15.529143, 57.95555, 0), App.Vector(0, 0, 1), 6.5), False)
sketch3.addGeometry(Part.Circle(App.Vector(0, 60, 0), App.Vector(0, 0, 1), 6.5), False)
sketch3.addGeometry(Part.Circle(App.Vector(-15.529143, 57.95555, 0), App.Vector(0, 0, 1), 6.5), False)
sketch3.addGeometry(Part.Circle(App.Vector(-30, 51.961524, 0), App.Vector(0, 0, 1), 6.5), False)
sketch3.addGeometry(Part.Circle(App.Vector(-42.426407, 42.426407, 0), App.Vector(0, 0, 1), 6.5), False)
sketch3.addGeometry(Part.Circle(App.Vector(-51.961524, 30, 0), App.Vector(0, 0, 1), 6.5), False)
sketch3.addGeometry(Part.Circle(App.Vector(-57.95555, 15.529143, 0), App.Vector(0, 0, 1), 6.5), False)
sketch3.addGeometry(Part.Circle(App.Vector(-60, 0, 0), App.Vector(0, 0, 1), 6.5), False)
sketch3.addGeometry(Part.Circle(App.Vector(-57.95555, -15.529143, 0), App.Vector(0, 0, 1), 6.5), False)
sketch3.addGeometry(Part.Circle(App.Vector(-51.961524, -30, 0), App.Vector(0, 0, 1), 6.5), False)
sketch3.addGeometry(Part.Circle(App.Vector(-42.426407, -42.426407, 0), App.Vector(0, 0, 1), 6.5), False)
sketch3.addGeometry(Part.Circle(App.Vector(-30, -51.961524, 0), App.Vector(0, 0, 1), 6.5), False)
sketch3.addGeometry(Part.Circle(App.Vector(-15.529143, -57.95555, 0), App.Vector(0, 0, 1), 6.5), False)
sketch3.addConstraint(Sketcher.Constraint("Equal", 0, 1))
sketch3.addConstraint(Sketcher.Constraint("Equal", 1, 2))
sketch3.addConstraint(Sketcher.Constraint("Equal", 2, 3))
sketch3.addConstraint(Sketcher.Constraint("Equal", 3, 4))
sketch3.addConstraint(Sketcher.Constraint("Equal", 4, 5))
sketch3.addConstraint(Sketcher.Constraint("Equal", 5, 6))
sketch3.addConstraint(Sketcher.Constraint("Equal", 6, 7))
sketch3.addConstraint(Sketcher.Constraint("Equal", 7, 8))
sketch3.addConstraint(Sketcher.Constraint("Equal", 8, 9))
sketch3.addConstraint(Sketcher.Constraint("Equal", 9, 10))
sketch3.addConstraint(Sketcher.Constraint("Equal", 10, 11))
sketch3.addConstraint(Sketcher.Constraint("Equal", 11, 12))
sketch3.addConstraint(Sketcher.Constraint("Equal", 12, 13))
sketch3.addConstraint(Sketcher.Constraint("Equal", 13, 14))
sketch3.addConstraint(Sketcher.Constraint("Equal", 14, 15))
sketch3.addConstraint(Sketcher.Constraint("Equal", 15, 16))
sketch3.addConstraint(Sketcher.Constraint("Equal", 16, 17))
sketch3.addConstraint(Sketcher.Constraint("Equal", 17, 18))
sketch3.addConstraint(Sketcher.Constraint("Equal", 18, 19))
sketch3.addConstraint(Sketcher.Constraint("Equal", 19, 20))
sketch3.addConstraint(Sketcher.Constraint("Equal", 20, 21))
sketch3.addConstraint(Sketcher.Constraint("Equal", 21, 22))
sketch3.addConstraint(Sketcher.Constraint("Equal", 22, 23))
sketch3.addConstraint(Sketcher.Constraint("Symmetric", 0, 3, 12, 3, -1, 1))
sketch3.addConstraint(Sketcher.Constraint("Symmetric", 1, 3, 13, 3, -1, 1))
sketch3.addConstraint(Sketcher.Constraint("Symmetric", 2, 3, 14, 3, -1, 1))
sketch3.addConstraint(Sketcher.Constraint("Symmetric", 3, 3, 15, 3, -1, 1))
sketch3.addConstraint(Sketcher.Constraint("Symmetric", 4, 3, 16, 3, -1, 1))
sketch3.addConstraint(Sketcher.Constraint("Symmetric", 5, 3, 17, 3, -1, 1))
sketch3.addConstraint(Sketcher.Constraint("Symmetric", 6, 3, 18, 3, -1, 1))
sketch3.addConstraint(Sketcher.Constraint("Symmetric", 7, 3, 19, 3, -1, 1))
sketch3.addConstraint(Sketcher.Constraint("Symmetric", 8, 3, 20, 3, -1, 1))
sketch3.addConstraint(Sketcher.Constraint("Symmetric", 9, 3, 21, 3, -1, 1))
sketch3.addConstraint(Sketcher.Constraint("Symmetric", 10, 3, 22, 3, -1, 1))
sketch3.addConstraint(Sketcher.Constraint("Symmetric", 11, 3, 23, 3, -1, 1))
sketch3.addConstraint(Sketcher.Constraint("Symmetric", 11, 3, 13, 3, -2))
sketch3.addConstraint(Sketcher.Constraint("Symmetric", 10, 3, 14, 3, -2))
sketch3.addConstraint(Sketcher.Constraint("Symmetric", 9, 3, 15, 3, -2))
sketch3.addConstraint(Sketcher.Constraint("Symmetric", 8, 3, 16, 3, -2))
sketch3.addConstraint(Sketcher.Constraint("Symmetric", 7, 3, 17, 3, -2))
sketch3.addConstraint(Sketcher.Constraint("PointOnObject", 0, 3, -2))
sketch3.addConstraint(Sketcher.Constraint("PointOnObject", 6, 3, -1))
sketch3.addConstraint(Sketcher.Constraint("Diameter", 0, 13.0))
sketch3.addConstraint(Sketcher.Constraint("DistanceY", 0, 3, -1, 1, 60.0))
sketch3.addConstraint(Sketcher.Constraint("DistanceX", -1, 1, 2, 3, 30.0))
sketch3.addConstraint(Sketcher.Constraint("DistanceY", 4, 3, -1, 1, 30.0))
sketch3.addConstraint(Sketcher.Constraint("DistanceX", -1, 1, 6, 3, 60.0))
sketch3.addConstraint(Sketcher.Constraint("DistanceY", 1, 3, -1, 1, 57.95555))
sketch3.addConstraint(Sketcher.Constraint("DistanceX", -1, 1, 5, 3, 57.95555))
sketch3.addConstraint(Sketcher.Constraint("DistanceX", 1, 3, 4, 3, 36.432382))
sketch3.addConstraint(Sketcher.Constraint("DistanceY", 2, 3, 5, 3, 36.432382))
sketch3.addConstraint(Sketcher.Constraint("DistanceY", 3, 3, 7, 3, 57.95555))
sketch3.addConstraint(Sketcher.Constraint("DistanceX", 13, 3, 9, 3, 57.95555))
sketch3.addConstraint(Sketcher.Constraint("DistanceX", -1, 1, 1, 3, 15.529143))
sketch3.addConstraint(Sketcher.Constraint("DistanceY", 2, 3, -1, 1, 51.961524))
pocket2 = body.newObject("PartDesign::Pocket", "Pocket001")
pocket2.Profile = sketch3
pocket2.Length = 2

doc.recompute()
